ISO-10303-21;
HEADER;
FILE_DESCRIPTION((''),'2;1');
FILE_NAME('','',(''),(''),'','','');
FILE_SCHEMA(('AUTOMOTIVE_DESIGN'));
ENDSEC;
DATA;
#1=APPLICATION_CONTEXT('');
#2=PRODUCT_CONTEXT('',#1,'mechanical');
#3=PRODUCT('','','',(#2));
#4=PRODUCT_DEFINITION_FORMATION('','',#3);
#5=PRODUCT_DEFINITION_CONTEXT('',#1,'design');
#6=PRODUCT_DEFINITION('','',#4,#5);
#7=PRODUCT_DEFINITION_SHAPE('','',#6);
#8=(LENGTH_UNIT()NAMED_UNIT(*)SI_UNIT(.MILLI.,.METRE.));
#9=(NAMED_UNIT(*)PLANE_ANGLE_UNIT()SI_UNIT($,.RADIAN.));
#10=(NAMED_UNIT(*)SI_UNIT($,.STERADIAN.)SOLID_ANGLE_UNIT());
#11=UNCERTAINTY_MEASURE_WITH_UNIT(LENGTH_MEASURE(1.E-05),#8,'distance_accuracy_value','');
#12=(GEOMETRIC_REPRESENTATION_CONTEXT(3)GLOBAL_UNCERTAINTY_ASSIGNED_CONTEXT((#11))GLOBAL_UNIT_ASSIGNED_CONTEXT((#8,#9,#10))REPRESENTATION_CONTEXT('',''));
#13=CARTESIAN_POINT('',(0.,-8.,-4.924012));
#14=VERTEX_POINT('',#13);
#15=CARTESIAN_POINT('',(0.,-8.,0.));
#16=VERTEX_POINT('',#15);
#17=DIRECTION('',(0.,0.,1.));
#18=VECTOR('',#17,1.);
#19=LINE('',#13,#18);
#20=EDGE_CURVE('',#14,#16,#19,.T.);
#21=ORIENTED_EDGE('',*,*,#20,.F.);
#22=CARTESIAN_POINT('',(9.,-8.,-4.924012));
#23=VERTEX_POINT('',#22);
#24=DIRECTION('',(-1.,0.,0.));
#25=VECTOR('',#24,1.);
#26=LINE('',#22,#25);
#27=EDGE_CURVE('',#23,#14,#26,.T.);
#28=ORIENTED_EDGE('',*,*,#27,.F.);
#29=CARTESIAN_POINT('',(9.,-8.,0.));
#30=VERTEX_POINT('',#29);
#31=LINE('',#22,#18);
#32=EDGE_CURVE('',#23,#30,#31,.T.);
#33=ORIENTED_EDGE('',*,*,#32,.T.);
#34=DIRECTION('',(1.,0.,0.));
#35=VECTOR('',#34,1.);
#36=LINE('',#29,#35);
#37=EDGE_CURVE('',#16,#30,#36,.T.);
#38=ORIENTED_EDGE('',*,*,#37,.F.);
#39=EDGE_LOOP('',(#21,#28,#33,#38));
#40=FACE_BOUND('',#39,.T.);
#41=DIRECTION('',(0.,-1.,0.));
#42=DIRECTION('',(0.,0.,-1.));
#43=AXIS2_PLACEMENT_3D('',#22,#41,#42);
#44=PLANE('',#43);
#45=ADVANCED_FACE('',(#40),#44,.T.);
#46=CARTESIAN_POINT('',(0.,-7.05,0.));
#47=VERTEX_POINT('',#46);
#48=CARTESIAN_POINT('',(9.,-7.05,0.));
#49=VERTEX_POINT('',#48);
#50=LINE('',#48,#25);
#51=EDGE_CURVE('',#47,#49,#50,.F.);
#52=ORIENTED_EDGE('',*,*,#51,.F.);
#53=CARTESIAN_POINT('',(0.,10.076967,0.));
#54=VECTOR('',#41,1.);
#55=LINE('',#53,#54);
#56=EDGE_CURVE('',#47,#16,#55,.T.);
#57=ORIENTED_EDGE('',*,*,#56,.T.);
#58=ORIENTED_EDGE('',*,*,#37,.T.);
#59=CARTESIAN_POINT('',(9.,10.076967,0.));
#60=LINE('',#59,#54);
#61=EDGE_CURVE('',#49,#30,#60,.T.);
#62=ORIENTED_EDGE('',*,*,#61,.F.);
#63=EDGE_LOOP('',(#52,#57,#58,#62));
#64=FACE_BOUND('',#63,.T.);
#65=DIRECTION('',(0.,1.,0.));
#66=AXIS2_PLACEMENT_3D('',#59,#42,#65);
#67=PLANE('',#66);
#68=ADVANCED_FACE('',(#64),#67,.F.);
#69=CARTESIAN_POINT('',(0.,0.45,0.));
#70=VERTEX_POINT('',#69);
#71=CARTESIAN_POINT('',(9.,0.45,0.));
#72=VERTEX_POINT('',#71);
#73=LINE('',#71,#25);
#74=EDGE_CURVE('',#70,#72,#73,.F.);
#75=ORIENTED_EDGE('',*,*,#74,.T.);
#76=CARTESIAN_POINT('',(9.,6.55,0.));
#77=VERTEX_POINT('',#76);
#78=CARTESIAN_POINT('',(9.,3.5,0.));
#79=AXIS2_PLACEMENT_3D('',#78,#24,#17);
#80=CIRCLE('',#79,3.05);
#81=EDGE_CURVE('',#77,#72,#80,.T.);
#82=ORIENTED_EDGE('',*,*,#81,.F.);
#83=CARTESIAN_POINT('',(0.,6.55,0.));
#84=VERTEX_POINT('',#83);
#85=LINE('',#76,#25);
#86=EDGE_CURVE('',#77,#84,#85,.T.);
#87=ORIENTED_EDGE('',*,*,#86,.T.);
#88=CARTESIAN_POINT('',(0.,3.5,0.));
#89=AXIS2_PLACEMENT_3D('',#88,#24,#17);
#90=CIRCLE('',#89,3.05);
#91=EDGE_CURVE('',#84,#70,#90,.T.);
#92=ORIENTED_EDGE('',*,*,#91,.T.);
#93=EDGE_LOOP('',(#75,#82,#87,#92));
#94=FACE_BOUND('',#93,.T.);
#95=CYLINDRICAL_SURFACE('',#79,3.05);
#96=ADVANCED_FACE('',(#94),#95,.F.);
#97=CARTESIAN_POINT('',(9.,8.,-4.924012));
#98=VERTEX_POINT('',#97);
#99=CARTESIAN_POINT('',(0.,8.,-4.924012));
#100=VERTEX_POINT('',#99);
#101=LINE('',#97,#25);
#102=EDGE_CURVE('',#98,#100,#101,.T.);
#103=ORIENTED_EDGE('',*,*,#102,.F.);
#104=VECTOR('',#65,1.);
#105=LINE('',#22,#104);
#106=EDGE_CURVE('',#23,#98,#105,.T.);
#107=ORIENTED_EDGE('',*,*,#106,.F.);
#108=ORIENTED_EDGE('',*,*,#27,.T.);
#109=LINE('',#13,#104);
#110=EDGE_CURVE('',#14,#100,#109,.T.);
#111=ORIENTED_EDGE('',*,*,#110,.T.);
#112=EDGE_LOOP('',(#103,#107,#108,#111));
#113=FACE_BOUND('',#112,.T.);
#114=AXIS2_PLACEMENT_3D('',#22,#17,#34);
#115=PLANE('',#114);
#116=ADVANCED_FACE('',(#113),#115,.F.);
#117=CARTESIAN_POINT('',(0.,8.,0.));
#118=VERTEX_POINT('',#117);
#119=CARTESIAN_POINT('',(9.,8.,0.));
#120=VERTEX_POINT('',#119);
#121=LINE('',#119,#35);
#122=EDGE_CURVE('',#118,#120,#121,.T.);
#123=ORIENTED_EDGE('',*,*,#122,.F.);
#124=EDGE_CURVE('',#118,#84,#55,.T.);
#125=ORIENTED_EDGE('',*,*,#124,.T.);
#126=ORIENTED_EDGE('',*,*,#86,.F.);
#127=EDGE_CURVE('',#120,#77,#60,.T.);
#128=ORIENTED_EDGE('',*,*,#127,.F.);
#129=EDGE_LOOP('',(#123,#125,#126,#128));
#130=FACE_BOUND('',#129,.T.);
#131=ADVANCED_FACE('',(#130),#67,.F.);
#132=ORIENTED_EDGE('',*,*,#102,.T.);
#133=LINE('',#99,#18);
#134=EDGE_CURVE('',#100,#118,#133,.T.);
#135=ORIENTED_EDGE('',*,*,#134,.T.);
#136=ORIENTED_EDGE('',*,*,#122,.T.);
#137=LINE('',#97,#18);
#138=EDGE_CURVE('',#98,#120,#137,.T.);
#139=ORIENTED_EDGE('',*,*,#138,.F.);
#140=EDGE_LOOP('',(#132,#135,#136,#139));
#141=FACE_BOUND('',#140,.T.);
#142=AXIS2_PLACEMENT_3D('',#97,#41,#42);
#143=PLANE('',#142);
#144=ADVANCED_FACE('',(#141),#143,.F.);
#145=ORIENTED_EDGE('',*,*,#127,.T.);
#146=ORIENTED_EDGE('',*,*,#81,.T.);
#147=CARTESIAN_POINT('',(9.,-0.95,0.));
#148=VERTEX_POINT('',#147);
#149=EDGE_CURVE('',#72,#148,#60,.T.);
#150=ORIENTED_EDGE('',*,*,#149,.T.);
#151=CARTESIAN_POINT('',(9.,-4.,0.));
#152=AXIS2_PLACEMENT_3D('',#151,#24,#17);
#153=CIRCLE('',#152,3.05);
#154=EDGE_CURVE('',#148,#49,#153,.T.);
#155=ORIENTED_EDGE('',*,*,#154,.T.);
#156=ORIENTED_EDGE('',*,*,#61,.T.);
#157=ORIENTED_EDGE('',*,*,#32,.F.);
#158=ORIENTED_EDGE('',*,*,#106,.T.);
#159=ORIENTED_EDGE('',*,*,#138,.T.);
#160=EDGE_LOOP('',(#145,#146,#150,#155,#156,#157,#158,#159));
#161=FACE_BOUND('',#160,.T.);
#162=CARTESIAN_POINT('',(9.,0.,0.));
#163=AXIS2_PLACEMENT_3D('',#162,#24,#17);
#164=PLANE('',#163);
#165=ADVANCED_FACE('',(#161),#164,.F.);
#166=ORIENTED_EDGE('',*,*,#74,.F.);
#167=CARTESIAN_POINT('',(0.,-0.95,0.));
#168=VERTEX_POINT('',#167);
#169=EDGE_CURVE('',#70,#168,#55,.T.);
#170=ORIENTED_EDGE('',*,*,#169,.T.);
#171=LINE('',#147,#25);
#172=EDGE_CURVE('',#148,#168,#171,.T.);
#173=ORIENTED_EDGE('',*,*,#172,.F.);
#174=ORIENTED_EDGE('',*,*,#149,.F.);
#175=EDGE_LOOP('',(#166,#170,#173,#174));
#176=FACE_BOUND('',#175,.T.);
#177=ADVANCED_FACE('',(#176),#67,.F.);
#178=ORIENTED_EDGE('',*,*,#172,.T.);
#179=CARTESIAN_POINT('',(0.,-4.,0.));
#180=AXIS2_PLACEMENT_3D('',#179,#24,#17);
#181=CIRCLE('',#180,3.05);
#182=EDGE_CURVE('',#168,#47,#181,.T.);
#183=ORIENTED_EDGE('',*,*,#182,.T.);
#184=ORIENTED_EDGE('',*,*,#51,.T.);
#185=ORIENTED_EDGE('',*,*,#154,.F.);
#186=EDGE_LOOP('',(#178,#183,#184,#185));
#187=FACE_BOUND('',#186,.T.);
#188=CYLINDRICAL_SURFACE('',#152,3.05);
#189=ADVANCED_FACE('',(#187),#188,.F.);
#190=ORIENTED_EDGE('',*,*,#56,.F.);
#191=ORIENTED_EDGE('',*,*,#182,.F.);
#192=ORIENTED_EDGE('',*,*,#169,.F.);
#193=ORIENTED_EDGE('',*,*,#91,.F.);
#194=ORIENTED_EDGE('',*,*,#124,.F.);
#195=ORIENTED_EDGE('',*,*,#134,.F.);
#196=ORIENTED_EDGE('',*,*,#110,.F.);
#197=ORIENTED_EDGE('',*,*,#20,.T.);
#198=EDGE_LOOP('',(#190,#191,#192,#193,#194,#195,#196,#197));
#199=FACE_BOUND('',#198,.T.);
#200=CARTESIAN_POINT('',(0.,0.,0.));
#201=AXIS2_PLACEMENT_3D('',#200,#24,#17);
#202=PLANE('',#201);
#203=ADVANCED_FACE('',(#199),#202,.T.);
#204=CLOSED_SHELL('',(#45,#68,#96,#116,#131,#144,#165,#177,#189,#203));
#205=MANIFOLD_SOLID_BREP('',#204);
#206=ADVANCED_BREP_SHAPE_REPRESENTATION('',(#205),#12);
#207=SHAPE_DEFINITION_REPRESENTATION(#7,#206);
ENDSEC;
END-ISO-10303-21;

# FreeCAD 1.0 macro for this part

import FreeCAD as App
import Part
import Sketcher

V = App.Vector
Q = App.Units.Quantity


def add_polygon(sketch, points):
    """Adds a closed chain of lines whose ends are joined by coincident constraints."""
    first, n = sketch.GeometryCount, len(points)
    for a, b in zip(points, points[1:] + points[:1]):
        sketch.addGeometry(Part.LineSegment(App.Vector(*a, 0), App.Vector(*b, 0)), False)
    for i in range(n):
        sketch.addConstraint(Sketcher.Constraint("Coincident", first + i, 2, first + (i + 1) % n, 1))

doc = App.newDocument("Part")
body = doc.addObject("PartDesign::Body", "Body")

# Sketch on YZ plane
sketch1 = doc.addObject("Sketcher::SketchObject", "Sketch")
body.addObject(sketch1)
sketch1.AttachmentSupport = (doc.YZ_Plane, [""])
sketch1.MapMode = "FlatFace"
add_polygon(sketch1, [(8, 5), (-8, 5), (-8, -5), (8, -5)])  # lines 0-3
sketch1.addConstraint(Sketcher.Constraint("Horizontal", 0))
sketch1.addConstraint(Sketcher.Constraint("Vertical", 1))
sketch1.addConstraint(Sketcher.Constraint("Horizontal", 2))
sketch1.addConstraint(Sketcher.Constraint("Vertical", 3))
sketch1.addConstraint(Sketcher.Constraint("Symmetric", 0, 2, 2, 2, -1, 1))
sketch1.addConstraint(Sketcher.Constraint("DistanceX", 0, 2, 0, 1, Q("16 mm")))
sketch1.addConstraint(Sketcher.Constraint("DistanceY", 1, 2, 1, 1, Q("9.848024 mm")))
pad1 = doc.addObject("PartDesign::Pad", "Pad")
body.addObject(pad1)
pad1.Profile = sketch1
pad1.Length = 9

# Sketch on YZ plane
sketch2 = doc.addObject("Sketcher::SketchObject", "Sketch001")
body.addObject(sketch2)
sketch2.AttachmentSupport = (doc.YZ_Plane, [""])
sketch2.MapMode = "FlatFace"
sketch2.addGeometry(Part.Circle(V(3.5, 0, 0), V(0, 0, 1), 3), False)
sketch2.addGeometry(Part.Circle(V(-4, 0, 0), V(0, 0, 1), 3), False)
sketch2.addConstraint(Sketcher.Constraint("Equal", 0, 1))
sketch2.addConstraint(Sketcher.Constraint("PointOnObject", 0, 3, -1))
sketch2.addConstraint(Sketcher.Constraint("PointOnObject", 1, 3, -1))
sketch2.addConstraint(Sketcher.Constraint("Diameter", 0, Q("6.1 mm")))
sketch2.addConstraint(Sketcher.Constraint("DistanceX", 1, 3, -1, 1, Q("4 mm")))
sketch2.addConstraint(Sketcher.Constraint("DistanceX", -1, 1, 0, 3, Q("3.5 mm")))
pocket1 = doc.addObject("PartDesign::Pocket", "Pocket")
body.addObject(pocket1)
pocket1.Profile = sketch2
pocket1.Length = 9
pocket1.Reversed = True

# Sketch on YZ plane
sketch3 = doc.addObject("Sketcher::SketchObject", "Sketch002")
body.addObject(sketch3)
sketch3.AttachmentSupport = (doc.YZ_Plane, [""])
sketch3.MapMode = "FlatFace"
add_polygon(sketch3, [(10, 0), (-10, 0), (-10, 8), (10, 8)])  # lines 0-3
sketch3.addConstraint(Sketcher.Constraint("Horizontal", 0))
sketch3.addConstraint(Sketcher.Constraint("Vertical", 1))
sketch3.addConstraint(Sketcher.Constraint("Horizontal", 2))
sketch3.addConstraint(Sketcher.Constraint("Vertical", 3))
sketch3.addConstraint(Sketcher.Constraint("Symmetric", 0, 2, 3, 2, -1, 1))
sketch3.addConstraint(Sketcher.Constraint("DistanceY", 1, 1, 1, 2, Q("8.11079 mm")))
sketch3.addConstraint(Sketcher.Constraint("DistanceX", 0, 2, 0, 1, Q("20.153935 mm")))
pocket2 = doc.addObject("PartDesign::Pocket", "Pocket001")
body.addObject(pocket2)
pocket2.Profile = sketch3
pocket2.Length = 9
pocket2.Reversed = True

doc.recompute()
